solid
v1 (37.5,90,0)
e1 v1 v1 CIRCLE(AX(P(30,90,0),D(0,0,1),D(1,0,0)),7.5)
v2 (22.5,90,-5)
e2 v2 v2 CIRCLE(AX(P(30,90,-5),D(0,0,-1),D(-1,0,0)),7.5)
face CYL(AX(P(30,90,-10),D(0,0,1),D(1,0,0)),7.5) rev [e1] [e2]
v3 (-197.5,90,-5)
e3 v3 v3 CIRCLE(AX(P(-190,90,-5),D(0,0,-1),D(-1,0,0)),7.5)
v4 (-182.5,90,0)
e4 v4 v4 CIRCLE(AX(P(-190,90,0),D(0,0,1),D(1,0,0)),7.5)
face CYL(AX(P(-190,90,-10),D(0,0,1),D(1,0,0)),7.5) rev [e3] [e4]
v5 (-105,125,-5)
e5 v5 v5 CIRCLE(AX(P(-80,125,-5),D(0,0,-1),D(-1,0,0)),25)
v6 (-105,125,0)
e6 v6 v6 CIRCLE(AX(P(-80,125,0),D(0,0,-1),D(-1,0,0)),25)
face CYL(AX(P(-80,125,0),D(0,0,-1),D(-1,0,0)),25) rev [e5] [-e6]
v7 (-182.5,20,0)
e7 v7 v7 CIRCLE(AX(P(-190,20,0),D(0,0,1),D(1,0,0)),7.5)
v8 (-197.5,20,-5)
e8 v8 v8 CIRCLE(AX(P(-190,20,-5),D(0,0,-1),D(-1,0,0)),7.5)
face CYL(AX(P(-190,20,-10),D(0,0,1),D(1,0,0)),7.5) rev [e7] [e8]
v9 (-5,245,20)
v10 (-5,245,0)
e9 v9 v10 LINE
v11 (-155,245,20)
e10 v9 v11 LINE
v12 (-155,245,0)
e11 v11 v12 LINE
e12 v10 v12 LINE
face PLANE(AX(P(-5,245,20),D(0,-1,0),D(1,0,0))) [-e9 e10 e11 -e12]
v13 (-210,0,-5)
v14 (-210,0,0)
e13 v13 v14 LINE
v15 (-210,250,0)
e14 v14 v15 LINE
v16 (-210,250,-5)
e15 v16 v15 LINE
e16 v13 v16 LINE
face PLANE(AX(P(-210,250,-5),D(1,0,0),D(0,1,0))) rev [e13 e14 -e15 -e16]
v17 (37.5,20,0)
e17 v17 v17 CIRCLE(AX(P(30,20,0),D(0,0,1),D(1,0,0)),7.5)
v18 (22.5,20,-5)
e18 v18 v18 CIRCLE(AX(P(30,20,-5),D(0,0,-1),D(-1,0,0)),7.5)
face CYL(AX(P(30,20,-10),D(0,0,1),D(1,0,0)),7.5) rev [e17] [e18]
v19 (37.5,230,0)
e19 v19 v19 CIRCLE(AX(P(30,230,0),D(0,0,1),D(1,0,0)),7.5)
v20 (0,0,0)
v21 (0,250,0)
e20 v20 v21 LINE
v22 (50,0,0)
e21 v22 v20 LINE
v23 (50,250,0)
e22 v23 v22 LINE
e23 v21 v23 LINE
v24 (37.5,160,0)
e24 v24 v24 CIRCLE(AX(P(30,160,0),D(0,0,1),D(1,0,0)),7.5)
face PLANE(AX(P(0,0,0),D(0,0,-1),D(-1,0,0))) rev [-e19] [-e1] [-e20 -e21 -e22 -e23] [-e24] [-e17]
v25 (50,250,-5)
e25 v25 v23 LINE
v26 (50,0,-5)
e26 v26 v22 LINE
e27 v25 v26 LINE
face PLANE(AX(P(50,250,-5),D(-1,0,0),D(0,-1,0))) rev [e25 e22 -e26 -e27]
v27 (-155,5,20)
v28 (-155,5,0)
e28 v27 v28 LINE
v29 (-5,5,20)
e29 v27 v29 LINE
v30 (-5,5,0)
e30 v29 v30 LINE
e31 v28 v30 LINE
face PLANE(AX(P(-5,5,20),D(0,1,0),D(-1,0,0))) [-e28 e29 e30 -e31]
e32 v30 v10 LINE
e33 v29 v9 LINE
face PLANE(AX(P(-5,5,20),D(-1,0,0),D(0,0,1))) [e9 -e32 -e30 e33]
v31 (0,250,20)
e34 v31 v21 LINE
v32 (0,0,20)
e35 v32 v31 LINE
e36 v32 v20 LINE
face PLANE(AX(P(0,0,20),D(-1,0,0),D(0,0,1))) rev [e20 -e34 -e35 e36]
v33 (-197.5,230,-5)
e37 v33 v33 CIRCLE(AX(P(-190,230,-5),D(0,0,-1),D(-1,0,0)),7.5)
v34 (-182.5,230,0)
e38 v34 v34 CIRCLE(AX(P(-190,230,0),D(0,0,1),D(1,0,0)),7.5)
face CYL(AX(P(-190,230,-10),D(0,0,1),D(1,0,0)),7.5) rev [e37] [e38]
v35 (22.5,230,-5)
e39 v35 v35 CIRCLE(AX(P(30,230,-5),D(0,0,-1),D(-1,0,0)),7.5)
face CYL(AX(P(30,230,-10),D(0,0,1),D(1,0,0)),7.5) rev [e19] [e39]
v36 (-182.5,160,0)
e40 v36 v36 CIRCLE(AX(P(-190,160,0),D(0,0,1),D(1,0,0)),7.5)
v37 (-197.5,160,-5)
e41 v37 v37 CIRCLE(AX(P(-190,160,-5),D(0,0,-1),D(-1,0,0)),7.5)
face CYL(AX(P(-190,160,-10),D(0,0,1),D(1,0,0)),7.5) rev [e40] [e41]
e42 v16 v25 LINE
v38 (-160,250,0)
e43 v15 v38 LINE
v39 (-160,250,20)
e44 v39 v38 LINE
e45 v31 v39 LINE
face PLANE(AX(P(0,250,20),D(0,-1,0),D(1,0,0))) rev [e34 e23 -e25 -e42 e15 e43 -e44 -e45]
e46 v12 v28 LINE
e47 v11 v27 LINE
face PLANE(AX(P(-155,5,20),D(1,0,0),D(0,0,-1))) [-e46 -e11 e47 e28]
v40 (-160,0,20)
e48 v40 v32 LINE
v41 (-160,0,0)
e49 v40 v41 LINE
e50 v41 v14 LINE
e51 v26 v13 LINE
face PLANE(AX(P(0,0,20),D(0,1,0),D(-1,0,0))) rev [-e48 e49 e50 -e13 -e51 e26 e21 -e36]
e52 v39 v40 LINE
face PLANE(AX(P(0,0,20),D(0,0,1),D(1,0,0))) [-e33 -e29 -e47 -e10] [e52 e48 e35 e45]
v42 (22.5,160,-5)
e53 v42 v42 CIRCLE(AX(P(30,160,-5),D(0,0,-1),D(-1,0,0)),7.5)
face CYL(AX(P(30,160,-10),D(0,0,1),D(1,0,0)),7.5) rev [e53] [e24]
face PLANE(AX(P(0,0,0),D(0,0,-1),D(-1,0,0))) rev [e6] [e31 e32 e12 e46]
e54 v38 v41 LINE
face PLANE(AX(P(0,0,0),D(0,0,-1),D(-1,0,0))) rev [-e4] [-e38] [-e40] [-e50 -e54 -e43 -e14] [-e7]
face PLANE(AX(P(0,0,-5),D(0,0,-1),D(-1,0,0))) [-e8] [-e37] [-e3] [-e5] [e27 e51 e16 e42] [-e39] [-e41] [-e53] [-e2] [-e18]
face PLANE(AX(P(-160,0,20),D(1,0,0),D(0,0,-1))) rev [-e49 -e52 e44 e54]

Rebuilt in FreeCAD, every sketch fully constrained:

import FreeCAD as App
import Part
import Sketcher

V = App.Vector
Q = App.Units.Quantity

doc = App.newDocument("Part")
params = doc.addObject("Spreadsheet::Sheet", "Params")
for row, (alias, value) in enumerate([
    ("sketch1_width", "160 mm"),
    ("sketch1_width2", "150 mm"),
    ("sketch1_height", "250 mm"),
    ("sketch1_height2", "240 mm"),
    ("pad1_length", "20 mm"),
    ("sketch2_width", "260 mm"),
    ("sketch2_height", "250 mm"),
    ("pad2_length", "5 mm"),
    ("sketch3_diameter", "50 mm"),
    ("pocket1_length", "5 mm"),
    ("sketch4_diameter", "15 mm"),
    ("pocket2_length", "10 mm"),
], start=1):
    params.set(f"A{row}", alias)
    params.set(f"B{row}", "=" + value)
    params.setAlias(f"B{row}", alias)

body = doc.addObject("PartDesign::Body", "Body")

# Sketch on XY plane
sketch1 = body.newObject("Sketcher::SketchObject", "Sketch")
sketch1.AttachmentSupport = (doc.getObject("XY_Plane"), [""])
sketch1.MapMode = "FlatFace"
sketch1.addGeometry(Part.LineSegment(V(-160, 250, 0), V(-160, 0, 0)), False)
sketch1.addGeometry(Part.LineSegment(V(-160, 0, 0), V(0, 0, 0)), False)
sketch1.addGeometry(Part.LineSegment(V(0, 0, 0), V(0, 250, 0)), False)
sketch1.addGeometry(Part.LineSegment(V(0, 250, 0), V(-160, 250, 0)), False)
sketch1.addGeometry(Part.LineSegment(V(-5, 5, 0), V(-155, 5, 0)), False)
sketch1.addGeometry(Part.LineSegment(V(-155, 5, 0), V(-155, 245, 0)), False)
sketch1.addGeometry(Part.LineSegment(V(-155, 245, 0), V(-5, 245, 0)), False)
sketch1.addGeometry(Part.LineSegment(V(-5, 245, 0), V(-5, 5, 0)), False)
sketch1.addConstraint(Sketcher.Constraint("Coincident", 0, 2, 1, 1))
sketch1.addConstraint(Sketcher.Constraint("Coincident", 1, 2, 2, 1))
sketch1.addConstraint(Sketcher.Constraint("Coincident", 2, 2, 3, 1))
sketch1.addConstraint(Sketcher.Constraint("Coincident", 3, 2, 0, 1))
sketch1.addConstraint(Sketcher.Constraint("Coincident", 4, 2, 5, 1))
sketch1.addConstraint(Sketcher.Constraint("Coincident", 5, 2, 6, 1))
sketch1.addConstraint(Sketcher.Constraint("Coincident", 6, 2, 7, 1))
sketch1.addConstraint(Sketcher.Constraint("Coincident", 7, 2, 4, 1))
sketch1.addConstraint(Sketcher.Constraint("Vertical", 0))
sketch1.addConstraint(Sketcher.Constraint("Horizontal", 1))
sketch1.addConstraint(Sketcher.Constraint("Vertical", 2))
sketch1.addConstraint(Sketcher.Constraint("Horizontal", 3))
sketch1.addConstraint(Sketcher.Constraint("Horizontal", 4))
sketch1.addConstraint(Sketcher.Constraint("Vertical", 5))
sketch1.addConstraint(Sketcher.Constraint("Horizontal", 6))
sketch1.addConstraint(Sketcher.Constraint("Vertical", 7))
sketch1.addConstraint(Sketcher.Constraint("Coincident", 1, 2, -1, 1))
sketch1.addConstraint(Sketcher.Constraint("DistanceX", 1, 1, 1, 2, Q("160 mm")))
sketch1.addConstraint(Sketcher.Constraint("DistanceX", 4, 2, 4, 1, Q("150 mm")))
sketch1.addConstraint(Sketcher.Constraint("DistanceY", 0, 2, 0, 1, Q("250 mm")))
sketch1.addConstraint(Sketcher.Constraint("DistanceY", 5, 1, 5, 2, Q("240 mm")))
sketch1.addConstraint(Sketcher.Constraint("DistanceX", 4, 2, -1, 1, Q("155 mm")))
sketch1.addConstraint(Sketcher.Constraint("DistanceY", -1, 1, 4, 2, Q("5 mm")))
sketch1.setExpression("Constraints[17]", "Params.sketch1_width")
sketch1.setExpression("Constraints[18]", "Params.sketch1_width2")
sketch1.setExpression("Constraints[19]", "Params.sketch1_height")
sketch1.setExpression("Constraints[20]", "Params.sketch1_height2")
pad1 = body.newObject("PartDesign::Pad", "Pad")
pad1.Profile = sketch1
pad1.setExpression("Length", "Params.pad1_length")

# Sketch on XY plane
sketch2 = body.newObject("Sketcher::SketchObject", "Sketch001")
sketch2.AttachmentSupport = (doc.getObject("XY_Plane"), [""])
sketch2.MapMode = "FlatFace"
sketch2.addGeometry(Part.LineSegment(V(50, 250, 0), V(50, 0, 0)), False)
sketch2.addGeometry(Part.LineSegment(V(50, 0, 0), V(-210, 0, 0)), False)
sketch2.addGeometry(Part.LineSegment(V(-210, 0, 0), V(-210, 250, 0)), False)
sketch2.addGeometry(Part.LineSegment(V(-210, 250, 0), V(50, 250, 0)), False)
sketch2.addConstraint(Sketcher.Constraint("Coincident", 0, 2, 1, 1))
sketch2.addConstraint(Sketcher.Constraint("Coincident", 1, 2, 2, 1))
sketch2.addConstraint(Sketcher.Constraint("Coincident", 2, 2, 3, 1))
sketch2.addConstraint(Sketcher.Constraint("Coincident", 3, 2, 0, 1))
sketch2.addConstraint(Sketcher.Constraint("Vertical", 0))
sketch2.addConstraint(Sketcher.Constraint("Horizontal", 1))
sketch2.addConstraint(Sketcher.Constraint("Vertical", 2))
sketch2.addConstraint(Sketcher.Constraint("Horizontal", 3))
sketch2.addConstraint(Sketcher.Constraint("PointOnObject", 0, 2, -1))
sketch2.addConstraint(Sketcher.Constraint("DistanceX", 1, 2, 1, 1, Q("260 mm")))
sketch2.addConstraint(Sketcher.Constraint("DistanceY", 0, 2, 0, 1, Q("250 mm")))
sketch2.addConstraint(Sketcher.Constraint("DistanceX", -1, 1, 0, 2, Q("50 mm")))
sketch2.setExpression("Constraints[9]", "Params.sketch2_width")
sketch2.setExpression("Constraints[10]", "Params.sketch2_height")
pad2 = body.newObject("PartDesign::Pad", "Pad001")
pad2.Profile = sketch2
pad2.setExpression("Length", "Params.pad2_length")
pad2.Reversed = True

# Sketch on XY plane
sketch3 = body.newObject("Sketcher::SketchObject", "Sketch002")
sketch3.AttachmentSupport = (doc.getObject("XY_Plane"), [""])
sketch3.MapMode = "FlatFace"
sketch3.AttachmentOffset = App.Placement(V(0, 0, -5), App.Rotation())
sketch3.addGeometry(Part.Circle(V(-80, 125, 0), V(0, 0, 1), 25), False)
sketch3.addConstraint(Sketcher.Constraint("Diameter", 0, Q("50 mm")))
sketch3.addConstraint(Sketcher.Constraint("DistanceX", 0, 3, -1, 1, Q("80 mm")))
sketch3.addConstraint(Sketcher.Constraint("DistanceY", -1, 1, 0, 3, Q("125 mm")))
sketch3.setExpression("Constraints[0]", "Params.sketch3_diameter")
pocket1 = body.newObject("PartDesign::Pocket", "Pocket")
pocket1.Profile = sketch3
pocket1.setExpression("Length", "Params.pocket1_length")
pocket1.Reversed = True

# Sketch on XY plane
sketch4 = body.newObject("Sketcher::SketchObject", "Sketch003")
sketch4.AttachmentSupport = (doc.getObject("XY_Plane"), [""])
sketch4.MapMode = "FlatFace"
sketch4.addGeometry(Part.Circle(V(30, 230, 0), V(0, 0, 1), 8), False)
sketch4.addGeometry(Part.Circle(V(-190, 230, 0), V(0, 0, 1), 8), False)
sketch4.addGeometry(Part.Circle(V(-190, 160, 0), V(0, 0, 1), 8), False)
sketch4.addGeometry(Part.Circle(V(30, 160, 0), V(0, 0, 1), 8), False)
sketch4.addGeometry(Part.Circle(V(-190, 90, 0), V(0, 0, 1), 8), False)
sketch4.addGeometry(Part.Circle(V(30, 90, 0), V(0, 0, 1), 8), False)
sketch4.addGeometry(Part.Circle(V(-190, 20, 0), V(0, 0, 1), 8), False)
sketch4.addGeometry(Part.Circle(V(30, 20, 0), V(0, 0, 1), 8), False)
sketch4.addConstraint(Sketcher.Constraint("Equal", 0, 1))
sketch4.addConstraint(Sketcher.Constraint("Equal", 1, 2))
sketch4.addConstraint(Sketcher.Constraint("Equal", 2, 3))
sketch4.addConstraint(Sketcher.Constraint("Equal", 3, 4))
sketch4.addConstraint(Sketcher.Constraint("Equal", 4, 5))
sketch4.addConstraint(Sketcher.Constraint("Equal", 5, 6))
sketch4.addConstraint(Sketcher.Constraint("Equal", 6, 7))
sketch4.addConstraint(Sketcher.Constraint("Horizontal", 0, 3, 1, 3))
sketch4.addConstraint(Sketcher.Constraint("Horizontal", 2, 3, 3, 3))
sketch4.addConstraint(Sketcher.Constraint("Horizontal", 4, 3, 5, 3))
sketch4.addConstraint(Sketcher.Constraint("Horizontal", 6, 3, 7, 3))
sketch4.addConstraint(Sketcher.Constraint("Vertical", 1, 3, 2, 3))
sketch4.addConstraint(Sketcher.Constraint("Vertical", 0, 3, 3, 3))
sketch4.addConstraint(Sketcher.Constraint("Vertical", 2, 3, 4, 3))
sketch4.addConstraint(Sketcher.Constraint("Vertical", 3, 3, 5, 3))
sketch4.addConstraint(Sketcher.Constraint("Vertical", 4, 3, 6, 3))
sketch4.addConstraint(Sketcher.Constraint("Vertical", 5, 3, 7, 3))
sketch4.addConstraint(Sketcher.Constraint("Diameter", 0, Q("15 mm")))
sketch4.addConstraint(Sketcher.Constraint("DistanceX", -1, 1, 0, 3, Q("30 mm")))
sketch4.addConstraint(Sketcher.Constraint("DistanceY", -1, 1, 0, 3, Q("230 mm")))
sketch4.addConstraint(Sketcher.Constraint("DistanceX", 1, 3, -1, 1, Q("190 mm")))
sketch4.addConstraint(Sketcher.Constraint("DistanceY", -1, 1, 2, 3, Q("160 mm")))
sketch4.addConstraint(Sketcher.Constraint("DistanceY", -1, 1, 4, 3, Q("90 mm")))
sketch4.addConstraint(Sketcher.Constraint("DistanceY", -1, 1, 6, 3, Q("20 mm")))
sketch4.setExpression("Constraints[17]", "Params.sketch4_diameter")
pocket2 = body.newObject("PartDesign::Pocket", "Pocket001")
pocket2.Profile = sketch4
pocket2.setExpression("Length", "Params.pocket2_length")

doc.recompute()
